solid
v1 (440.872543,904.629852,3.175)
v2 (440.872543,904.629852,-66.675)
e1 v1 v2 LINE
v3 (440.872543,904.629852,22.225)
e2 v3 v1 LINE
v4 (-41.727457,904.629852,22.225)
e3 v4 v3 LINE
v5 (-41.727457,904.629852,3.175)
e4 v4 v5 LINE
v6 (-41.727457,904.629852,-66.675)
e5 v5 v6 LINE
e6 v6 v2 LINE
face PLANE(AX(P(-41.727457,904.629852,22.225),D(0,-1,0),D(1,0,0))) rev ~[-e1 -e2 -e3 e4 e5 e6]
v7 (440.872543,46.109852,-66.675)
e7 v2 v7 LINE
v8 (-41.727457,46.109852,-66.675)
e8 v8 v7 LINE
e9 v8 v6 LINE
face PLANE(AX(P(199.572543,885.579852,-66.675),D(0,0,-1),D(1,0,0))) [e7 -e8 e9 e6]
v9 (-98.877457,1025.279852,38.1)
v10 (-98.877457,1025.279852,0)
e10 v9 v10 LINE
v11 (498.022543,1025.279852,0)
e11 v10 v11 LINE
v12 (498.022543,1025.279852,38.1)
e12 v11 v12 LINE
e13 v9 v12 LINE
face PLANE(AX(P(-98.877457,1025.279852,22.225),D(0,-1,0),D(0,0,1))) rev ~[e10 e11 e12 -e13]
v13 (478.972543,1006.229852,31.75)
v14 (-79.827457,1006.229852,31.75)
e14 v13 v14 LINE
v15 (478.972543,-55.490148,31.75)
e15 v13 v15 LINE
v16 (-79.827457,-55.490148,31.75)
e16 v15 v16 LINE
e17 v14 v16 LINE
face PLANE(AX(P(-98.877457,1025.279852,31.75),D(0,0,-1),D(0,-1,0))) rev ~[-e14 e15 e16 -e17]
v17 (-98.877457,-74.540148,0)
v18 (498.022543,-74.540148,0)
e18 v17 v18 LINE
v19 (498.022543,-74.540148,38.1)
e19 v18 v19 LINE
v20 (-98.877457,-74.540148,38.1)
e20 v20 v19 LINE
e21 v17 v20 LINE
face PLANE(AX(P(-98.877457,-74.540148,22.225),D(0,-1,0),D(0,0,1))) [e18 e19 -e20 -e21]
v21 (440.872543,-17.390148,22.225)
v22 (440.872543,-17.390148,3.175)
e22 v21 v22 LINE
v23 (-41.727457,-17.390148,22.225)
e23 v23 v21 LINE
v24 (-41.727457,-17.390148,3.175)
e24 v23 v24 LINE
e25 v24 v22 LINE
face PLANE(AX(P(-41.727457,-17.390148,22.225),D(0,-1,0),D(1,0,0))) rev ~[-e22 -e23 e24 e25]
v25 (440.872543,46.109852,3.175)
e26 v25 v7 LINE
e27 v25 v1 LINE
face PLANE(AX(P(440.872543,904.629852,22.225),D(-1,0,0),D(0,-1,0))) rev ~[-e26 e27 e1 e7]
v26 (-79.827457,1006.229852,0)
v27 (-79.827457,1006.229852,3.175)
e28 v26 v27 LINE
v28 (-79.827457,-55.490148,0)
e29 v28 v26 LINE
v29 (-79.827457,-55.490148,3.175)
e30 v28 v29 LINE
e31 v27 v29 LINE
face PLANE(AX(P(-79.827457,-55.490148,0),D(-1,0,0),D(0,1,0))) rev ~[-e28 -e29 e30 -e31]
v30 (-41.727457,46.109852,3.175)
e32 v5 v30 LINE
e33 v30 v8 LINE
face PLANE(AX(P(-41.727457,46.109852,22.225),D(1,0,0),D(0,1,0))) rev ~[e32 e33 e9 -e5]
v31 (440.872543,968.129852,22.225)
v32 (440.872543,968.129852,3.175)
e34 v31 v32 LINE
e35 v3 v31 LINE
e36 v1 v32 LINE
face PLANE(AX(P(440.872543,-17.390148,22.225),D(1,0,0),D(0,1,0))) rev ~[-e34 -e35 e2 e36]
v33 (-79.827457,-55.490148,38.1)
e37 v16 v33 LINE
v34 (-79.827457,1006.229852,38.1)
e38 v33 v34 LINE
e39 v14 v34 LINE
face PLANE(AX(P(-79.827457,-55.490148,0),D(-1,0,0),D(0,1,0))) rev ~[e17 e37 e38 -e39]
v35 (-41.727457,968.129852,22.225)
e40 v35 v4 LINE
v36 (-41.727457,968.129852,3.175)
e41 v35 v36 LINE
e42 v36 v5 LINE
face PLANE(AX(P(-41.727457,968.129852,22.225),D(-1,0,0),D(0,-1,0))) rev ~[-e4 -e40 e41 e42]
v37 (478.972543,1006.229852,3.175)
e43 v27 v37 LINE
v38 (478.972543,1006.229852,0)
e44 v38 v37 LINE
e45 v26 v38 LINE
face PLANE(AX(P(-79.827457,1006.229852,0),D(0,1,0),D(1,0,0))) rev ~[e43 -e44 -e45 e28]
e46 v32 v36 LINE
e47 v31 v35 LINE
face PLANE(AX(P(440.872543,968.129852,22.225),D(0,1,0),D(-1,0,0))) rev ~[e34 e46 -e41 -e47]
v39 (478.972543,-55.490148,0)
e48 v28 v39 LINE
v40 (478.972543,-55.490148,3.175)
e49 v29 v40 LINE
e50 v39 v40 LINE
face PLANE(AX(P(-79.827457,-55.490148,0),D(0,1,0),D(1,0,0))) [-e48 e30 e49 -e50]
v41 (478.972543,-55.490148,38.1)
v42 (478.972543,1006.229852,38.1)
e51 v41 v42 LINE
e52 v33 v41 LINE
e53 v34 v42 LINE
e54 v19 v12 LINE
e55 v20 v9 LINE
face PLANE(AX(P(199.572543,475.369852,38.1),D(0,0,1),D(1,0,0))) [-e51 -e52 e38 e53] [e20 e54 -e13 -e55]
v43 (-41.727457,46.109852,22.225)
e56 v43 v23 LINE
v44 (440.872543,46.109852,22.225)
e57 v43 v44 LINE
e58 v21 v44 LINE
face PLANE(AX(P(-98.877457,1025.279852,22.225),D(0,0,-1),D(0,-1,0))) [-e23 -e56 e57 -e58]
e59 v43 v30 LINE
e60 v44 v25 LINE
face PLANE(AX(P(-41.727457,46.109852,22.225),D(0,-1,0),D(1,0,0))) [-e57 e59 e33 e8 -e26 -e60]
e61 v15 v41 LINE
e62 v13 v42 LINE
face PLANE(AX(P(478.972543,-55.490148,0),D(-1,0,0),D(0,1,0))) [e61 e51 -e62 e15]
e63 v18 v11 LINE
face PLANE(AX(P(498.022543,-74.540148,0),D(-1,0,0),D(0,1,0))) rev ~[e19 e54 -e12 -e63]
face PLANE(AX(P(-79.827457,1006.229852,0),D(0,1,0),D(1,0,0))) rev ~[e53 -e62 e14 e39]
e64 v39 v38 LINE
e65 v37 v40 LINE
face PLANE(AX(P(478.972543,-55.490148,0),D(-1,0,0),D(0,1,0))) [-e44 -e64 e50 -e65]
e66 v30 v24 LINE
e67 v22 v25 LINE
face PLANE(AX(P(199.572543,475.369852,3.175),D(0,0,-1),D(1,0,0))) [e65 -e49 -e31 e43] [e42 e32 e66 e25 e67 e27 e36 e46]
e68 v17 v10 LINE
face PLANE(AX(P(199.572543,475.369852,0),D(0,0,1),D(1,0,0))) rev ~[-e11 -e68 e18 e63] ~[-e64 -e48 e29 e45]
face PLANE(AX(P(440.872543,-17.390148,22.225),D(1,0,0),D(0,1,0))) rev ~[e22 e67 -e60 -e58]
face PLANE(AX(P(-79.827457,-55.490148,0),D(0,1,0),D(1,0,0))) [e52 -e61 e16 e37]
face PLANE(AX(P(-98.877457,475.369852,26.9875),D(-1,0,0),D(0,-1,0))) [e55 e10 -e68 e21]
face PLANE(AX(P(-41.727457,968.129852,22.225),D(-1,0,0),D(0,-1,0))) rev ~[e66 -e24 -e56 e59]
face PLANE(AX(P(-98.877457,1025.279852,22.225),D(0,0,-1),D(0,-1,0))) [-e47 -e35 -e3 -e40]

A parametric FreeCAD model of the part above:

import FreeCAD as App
import Part
import Sketcher
Q = App.Units.Quantity

doc = App.newDocument("Part")
body = doc.addObject("PartDesign::Body", "Body")

# Sketch on XY plane
sketch1 = doc.addObject("Sketcher::SketchObject", "Sketch")
body.addObject(sketch1)
sketch1.AttachmentSupport = (doc.XY_Plane, [""])
sketch1.MapMode = "FlatFace"
sketch1.addGeometry(Part.LineSegment(App.Vector(-99, 1025, 0), App.Vector(-99, -75, 0)), False)
sketch1.addGeometry(Part.LineSegment(App.Vector(-99, -75, 0), App.Vector(498, -75, 0)), False)
sketch1.addGeometry(Part.LineSegment(App.Vector(498, -75, 0), App.Vector(498, 1025, 0)), False)
sketch1.addGeometry(Part.LineSegment(App.Vector(498, 1025, 0), App.Vector(-99, 1025, 0)), False)
sketch1.addGeometry(Part.LineSegment(App.Vector(479, -55, 0), App.Vector(-80, -55, 0)), False)
sketch1.addGeometry(Part.LineSegment(App.Vector(-80, -55, 0), App.Vector(-80, 1006, 0)), False)
sketch1.addGeometry(Part.LineSegment(App.Vector(-80, 1006, 0), App.Vector(479, 1006, 0)), False)
sketch1.addGeometry(Part.LineSegment(App.Vector(479, 1006, 0), App.Vector(479, -55, 0)), False)
sketch1.addConstraint(Sketcher.Constraint("Coincident", 0, 2, 1, 1))
sketch1.addConstraint(Sketcher.Constraint("Coincident", 1, 2, 2, 1))
sketch1.addConstraint(Sketcher.Constraint("Coincident", 2, 2, 3, 1))
sketch1.addConstraint(Sketcher.Constraint("Coincident", 3, 2, 0, 1))
sketch1.addConstraint(Sketcher.Constraint("Coincident", 4, 2, 5, 1))
sketch1.addConstraint(Sketcher.Constraint("Coincident", 5, 2, 6, 1))
sketch1.addConstraint(Sketcher.Constraint("Coincident", 6, 2, 7, 1))
sketch1.addConstraint(Sketcher.Constraint("Coincident", 7, 2, 4, 1))
sketch1.addConstraint(Sketcher.Constraint("Vertical", 0))
sketch1.addConstraint(Sketcher.Constraint("Horizontal", 1))
sketch1.addConstraint(Sketcher.Constraint("Vertical", 2))
sketch1.addConstraint(Sketcher.Constraint("Horizontal", 3))
sketch1.addConstraint(Sketcher.Constraint("Horizontal", 4))
sketch1.addConstraint(Sketcher.Constraint("Vertical", 5))
sketch1.addConstraint(Sketcher.Constraint("Horizontal", 6))
sketch1.addConstraint(Sketcher.Constraint("Vertical", 7))
sketch1.addConstraint(Sketcher.Constraint("DistanceX", 4, 2, 4, 1, Q("22 in")))
sketch1.addConstraint(Sketcher.Constraint("DistanceX", 1, 1, 1, 2, Q("23.5 in")))
sketch1.addConstraint(Sketcher.Constraint("DistanceY", 0, 2, 0, 1, Q("43.3 in")))
sketch1.addConstraint(Sketcher.Constraint("DistanceY", 5, 1, 5, 2, Q("41.8 in")))
sketch1.addConstraint(Sketcher.Constraint("DistanceX", 0, 2, 4, 2, Q("0.75 in")))
sketch1.addConstraint(Sketcher.Constraint("DistanceY", 0, 2, 4, 2, Q("0.75 in")))
sketch1.addConstraint(Sketcher.Constraint("DistanceY", 0, 2, -1, 1, 74.540148))
sketch1.addConstraint(Sketcher.Constraint("DistanceX", 0, 2, -1, 1, 98.877457))
pad1 = doc.addObject("PartDesign::Pad", "Pad")
body.addObject(pad1)
pad1.Profile = sketch1
pad1.Length = Q("1.5 in")

# Sketch on YZ plane
sketch2 = doc.addObject("Sketcher::SketchObject", "Sketch001")
body.addObject(sketch2)
sketch2.AttachmentSupport = (doc.YZ_Plane, [""])
sketch2.MapMode = "FlatFace"
sketch2.AttachmentOffset = App.Placement(App.Vector(0, 0, -98.877457), App.Rotation())
sketch2.addGeometry(Part.LineSegment(App.Vector(1025, 32, 0), App.Vector(1025, 22, 0)), False)
sketch2.addGeometry(Part.LineSegment(App.Vector(1025, 22, 0), App.Vector(-75, 22, 0)), False)
sketch2.addGeometry(Part.LineSegment(App.Vector(-75, 22, 0), App.Vector(-75, 32, 0)), False)
sketch2.addGeometry(Part.LineSegment(App.Vector(-75, 32, 0), App.Vector(1025, 32, 0)), False)
sketch2.addConstraint(Sketcher.Constraint("Coincident", 0, 2, 1, 1))
sketch2.addConstraint(Sketcher.Constraint("Coincident", 1, 2, 2, 1))
sketch2.addConstraint(Sketcher.Constraint("Coincident", 2, 2, 3, 1))
sketch2.addConstraint(Sketcher.Constraint("Coincident", 3, 2, 0, 1))
sketch2.addConstraint(Sketcher.Constraint("Vertical", 0))
sketch2.addConstraint(Sketcher.Constraint("Horizontal", 1))
sketch2.addConstraint(Sketcher.Constraint("Vertical", 2))
sketch2.addConstraint(Sketcher.Constraint("Horizontal", 3))
sketch2.addConstraint(Sketcher.Constraint("DistanceX", 1, 2, 1, 1, Q("43.3 in")))
sketch2.addConstraint(Sketcher.Constraint("DistanceY", 0, 2, 0, 1, Q("0.375 in")))
sketch2.addConstraint(Sketcher.Constraint("DistanceY", -1, 1, 2, 2, Q("1.25 in")))
sketch2.addConstraint(Sketcher.Constraint("DistanceX", -1, 1, 0, 2, 1025.279852))
pad2 = doc.addObject("PartDesign::Pad", "Pad001")
body.addObject(pad2)
pad2.Profile = sketch2
pad2.Length = Q("23 in")

# Sketch on XY plane
sketch3 = doc.addObject("Sketcher::SketchObject", "Sketch002")
body.addObject(sketch3)
sketch3.AttachmentSupport = (doc.XY_Plane, [""])
sketch3.MapMode = "FlatFace"
sketch3.AttachmentOffset = App.Placement(App.Vector(0, 0, 0.875 * 25.4), App.Rotation())
sketch3.addGeometry(Part.LineSegment(App.Vector(-80, -55, 0), App.Vector(-80, 1006, 0)), False)
sketch3.addGeometry(Part.LineSegment(App.Vector(-80, 1006, 0), App.Vector(479, 1006, 0)), False)
sketch3.addGeometry(Part.LineSegment(App.Vector(479, 1006, 0), App.Vector(479, -55, 0)), False)
sketch3.addGeometry(Part.LineSegment(App.Vector(479, -55, 0), App.Vector(-80, -55, 0)), False)
sketch3.addGeometry(Part.LineSegment(App.Vector(441, -17, 0), App.Vector(441, 968, 0)), False)
sketch3.addGeometry(Part.LineSegment(App.Vector(441, 968, 0), App.Vector(-42, 968, 0)), False)
sketch3.addGeometry(Part.LineSegment(App.Vector(-42, 968, 0), App.Vector(-42, -17, 0)), False)
sketch3.addGeometry(Part.LineSegment(App.Vector(-42, -17, 0), App.Vector(441, -17, 0)), False)
sketch3.addConstraint(Sketcher.Constraint("Coincident", 0, 2, 1, 1))
sketch3.addConstraint(Sketcher.Constraint("Coincident", 1, 2, 2, 1))
sketch3.addConstraint(Sketcher.Constraint("Coincident", 2, 2, 3, 1))
sketch3.addConstraint(Sketcher.Constraint("Coincident", 3, 2, 0, 1))
sketch3.addConstraint(Sketcher.Constraint("Coincident", 4, 2, 5, 1))
sketch3.addConstraint(Sketcher.Constraint("Coincident", 5, 2, 6, 1))
sketch3.addConstraint(Sketcher.Constraint("Coincident", 6, 2, 7, 1))
sketch3.addConstraint(Sketcher.Constraint("Coincident", 7, 2, 4, 1))
sketch3.addConstraint(Sketcher.Constraint("Vertical", 0))
sketch3.addConstraint(Sketcher.Constraint("Horizontal", 1))
sketch3.addConstraint(Sketcher.Constraint("Vertical", 2))
sketch3.addConstraint(Sketcher.Constraint("Horizontal", 3))
sketch3.addConstraint(Sketcher.Constraint("Vertical", 4))
sketch3.addConstraint(Sketcher.Constraint("Horizontal", 5))
sketch3.addConstraint(Sketcher.Constraint("Vertical", 6))
sketch3.addConstraint(Sketcher.Constraint("Horizontal", 7))
sketch3.addConstraint(Sketcher.Constraint("DistanceX", 1, 1, 1, 2, Q("22 in")))
sketch3.addConstraint(Sketcher.Constraint("DistanceX", 5, 2, 5, 1, Q("19 in")))
sketch3.addConstraint(Sketcher.Constraint("DistanceY", 0, 1, 0, 2, Q("41.8 in")))
sketch3.addConstraint(Sketcher.Constraint("DistanceY", 4, 1, 4, 2, Q("38.8 in")))
sketch3.addConstraint(Sketcher.Constraint("DistanceX", 4, 2, 1, 2, Q("1.5 in")))
sketch3.addConstraint(Sketcher.Constraint("DistanceY", 4, 2, 1, 2, Q("1.5 in")))
sketch3.addConstraint(Sketcher.Constraint("DistanceY", -1, 1, 0, 2, 1006.229852))
sketch3.addConstraint(Sketcher.Constraint("DistanceX", 0, 2, -1, 1, 79.827457))
pad3 = doc.addObject("PartDesign::Pad", "Pad002")
body.addObject(pad3)
pad3.Profile = sketch3
pad3.Length = Q("0.75 in")
pad3.Reversed = True

# Sketch on XY plane
sketch4 = doc.addObject("Sketcher::SketchObject", "Sketch003")
body.addObject(sketch4)
sketch4.AttachmentSupport = (doc.XY_Plane, [""])
sketch4.MapMode = "FlatFace"
sketch4.AttachmentOffset = App.Placement(App.Vector(0, 0, 0.875 * 25.4), App.Rotation())
sketch4.addGeometry(Part.LineSegment(App.Vector(-42, 905, 0), App.Vector(441, 905, 0)), False)
sketch4.addGeometry(Part.LineSegment(App.Vector(441, 905, 0), App.Vector(441, 46, 0)), False)
sketch4.addGeometry(Part.LineSegment(App.Vector(441, 46, 0), App.Vector(-42, 46, 0)), False)
sketch4.addGeometry(Part.LineSegment(App.Vector(-42, 46, 0), App.Vector(-42, 905, 0)), False)
sketch4.addConstraint(Sketcher.Constraint("Coincident", 0, 2, 1, 1))
sketch4.addConstraint(Sketcher.Constraint("Coincident", 1, 2, 2, 1))
sketch4.addConstraint(Sketcher.Constraint("Coincident", 2, 2, 3, 1))
sketch4.addConstraint(Sketcher.Constraint("Coincident", 3, 2, 0, 1))
sketch4.addConstraint(Sketcher.Constraint("Horizontal", 0))
sketch4.addConstraint(Sketcher.Constraint("Vertical", 1))
sketch4.addConstraint(Sketcher.Constraint("Horizontal", 2))
sketch4.addConstraint(Sketcher.Constraint("Vertical", 3))
sketch4.addConstraint(Sketcher.Constraint("DistanceX", 0, 1, 0, 2, Q("19 in")))
sketch4.addConstraint(Sketcher.Constraint("DistanceY", 1, 2, 1, 1, Q("33.8 in")))
sketch4.addConstraint(Sketcher.Constraint("DistanceY", -1, 1, 0, 2, 904.629852))
sketch4.addConstraint(Sketcher.Constraint("DistanceX", -1, 1, 0, 2, 440.872543))
pad4 = doc.addObject("PartDesign::Pad", "Pad003")
body.addObject(pad4)
pad4.Profile = sketch4
pad4.Length = Q("3.5 in")
pad4.Reversed = True

doc.recompute()
